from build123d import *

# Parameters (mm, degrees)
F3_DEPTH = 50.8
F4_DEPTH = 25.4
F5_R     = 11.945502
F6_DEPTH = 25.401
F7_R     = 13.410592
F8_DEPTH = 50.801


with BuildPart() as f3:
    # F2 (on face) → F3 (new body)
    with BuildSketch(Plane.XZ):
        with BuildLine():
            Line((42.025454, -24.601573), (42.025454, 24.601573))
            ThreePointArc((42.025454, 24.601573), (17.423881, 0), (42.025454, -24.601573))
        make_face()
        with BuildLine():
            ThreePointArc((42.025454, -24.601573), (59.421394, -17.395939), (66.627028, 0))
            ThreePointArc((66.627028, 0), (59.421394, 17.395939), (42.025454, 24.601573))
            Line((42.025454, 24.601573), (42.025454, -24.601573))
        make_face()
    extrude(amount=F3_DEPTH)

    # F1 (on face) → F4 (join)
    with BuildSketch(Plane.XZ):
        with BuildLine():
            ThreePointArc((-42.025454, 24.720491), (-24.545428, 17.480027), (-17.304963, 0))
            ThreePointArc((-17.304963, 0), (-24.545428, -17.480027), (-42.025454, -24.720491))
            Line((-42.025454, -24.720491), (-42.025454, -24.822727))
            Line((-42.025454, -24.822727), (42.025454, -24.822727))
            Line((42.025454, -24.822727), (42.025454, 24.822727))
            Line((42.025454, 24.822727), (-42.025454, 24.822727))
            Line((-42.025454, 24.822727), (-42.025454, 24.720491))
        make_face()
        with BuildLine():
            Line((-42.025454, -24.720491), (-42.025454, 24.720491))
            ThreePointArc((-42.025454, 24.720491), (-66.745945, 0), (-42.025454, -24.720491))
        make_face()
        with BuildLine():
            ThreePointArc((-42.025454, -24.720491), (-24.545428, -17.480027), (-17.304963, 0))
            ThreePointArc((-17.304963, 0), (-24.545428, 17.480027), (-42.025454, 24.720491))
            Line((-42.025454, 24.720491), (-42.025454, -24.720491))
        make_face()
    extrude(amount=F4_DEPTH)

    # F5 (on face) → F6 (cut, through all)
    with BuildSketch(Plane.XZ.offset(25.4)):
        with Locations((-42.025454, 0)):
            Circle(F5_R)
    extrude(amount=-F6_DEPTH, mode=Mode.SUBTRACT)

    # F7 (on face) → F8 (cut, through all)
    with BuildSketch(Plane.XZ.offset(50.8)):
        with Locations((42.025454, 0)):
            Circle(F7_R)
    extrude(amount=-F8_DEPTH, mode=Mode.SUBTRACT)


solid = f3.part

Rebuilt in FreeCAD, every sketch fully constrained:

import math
import FreeCAD as App
import Part
import Sketcher

V = App.Vector
Q = App.Units.Quantity

doc = App.newDocument("Part")
body = doc.addObject("PartDesign::Body", "Body")

# Sketch on XZ plane
sketch1 = body.newObject("Sketcher::SketchObject", "Sketch")
sketch1.AttachmentSupport = (doc.getObject("XZ_Plane"), [""])
sketch1.MapMode = "FlatFace"
sketch1.addGeometry(Part.ArcOfCircle(Part.Circle(V(42, 0, 0), V(0, 0, 1), 25), math.radians(90), math.radians(270)), False)
sketch1.addGeometry(Part.ArcOfCircle(Part.Circle(V(42, 0, 0), V(0, 0, 1), 25), math.radians(-90), math.radians(0)), False)
sketch1.addGeometry(Part.ArcOfCircle(Part.Circle(V(42, 0, 0), V(0, 0, 1), 25), math.radians(0), math.radians(90)), False)
sketch1.addConstraint(Sketcher.Constraint("Tangent", 0, 2, 1, 1))
sketch1.addConstraint(Sketcher.Constraint("Tangent", 1, 2, 2, 1))
sketch1.addConstraint(Sketcher.Constraint("Tangent", 2, 2, 0, 1))
sketch1.addConstraint(Sketcher.Constraint("Symmetric", 0, 2, 2, 2, -1))
sketch1.addConstraint(Sketcher.Constraint("PointOnObject", 1, 2, -1))
sketch1.addConstraint(Sketcher.Constraint("Vertical", 2, 3, 0, 2))
sketch1.addConstraint(Sketcher.Constraint("Radius", 0, Q("24.601573 mm")))
sketch1.addConstraint(Sketcher.Constraint("DistanceX", -1, 1, 0, 3, Q("42.025454 mm")))
pad1 = body.newObject("PartDesign::Pad", "Pad")
pad1.Profile = sketch1
pad1.Length = Q("2 in")

# Sketch on XZ plane
sketch2 = body.newObject("Sketcher::SketchObject", "Sketch001")
sketch2.AttachmentSupport = (doc.getObject("XZ_Plane"), [""])
sketch2.MapMode = "FlatFace"
sketch2.addGeometry(Part.LineSegment(V(-42.03, -24.72, 0), V(-42.03, -24.82, 0)), False)
sketch2.addGeometry(Part.LineSegment(V(-42.03, -24.82, 0), V(42.03, -24.82, 0)), False)
sketch2.addGeometry(Part.LineSegment(V(42.03, -24.82, 0), V(42.03, 24.82, 0)), False)
sketch2.addGeometry(Part.LineSegment(V(42.03, 24.82, 0), V(-42.03, 24.82, 0)), False)
sketch2.addGeometry(Part.LineSegment(V(-42.03, 24.82, 0), V(-42.03, 24.72, 0)), False)
sketch2.addGeometry(Part.ArcOfCircle(Part.Circle(V(-42.03, 0, 0), V(0, 0, 1), 24.72), math.radians(90), math.radians(270)), False)
sketch2.addConstraint(Sketcher.Constraint("Coincident", 0, 2, 1, 1))
sketch2.addConstraint(Sketcher.Constraint("Coincident", 1, 2, 2, 1))
sketch2.addConstraint(Sketcher.Constraint("Coincident", 2, 2, 3, 1))
sketch2.addConstraint(Sketcher.Constraint("Coincident", 3, 2, 4, 1))
sketch2.addConstraint(Sketcher.Constraint("Coincident", 4, 2, 5, 1))
sketch2.addConstraint(Sketcher.Constraint("Coincident", 5, 2, 0, 1))
sketch2.addConstraint(Sketcher.Constraint("Vertical", 0))
sketch2.addConstraint(Sketcher.Constraint("Horizontal", 1))
sketch2.addConstraint(Sketcher.Constraint("Vertical", 2))
sketch2.addConstraint(Sketcher.Constraint("Horizontal", 3))
sketch2.addConstraint(Sketcher.Constraint("Vertical", 4))
sketch2.addConstraint(Sketcher.Constraint("Symmetric", 0, 2, 2, 2, -1, 1))
sketch2.addConstraint(Sketcher.Constraint("Symmetric", 4, 2, 5, 2, -1))
sketch2.addConstraint(Sketcher.Constraint("Vertical", 5, 3, 0, 2))
sketch2.addConstraint(Sketcher.Constraint("Radius", 5, Q("24.720491 mm")))
sketch2.addConstraint(Sketcher.Constraint("DistanceX", 1, 1, 1, 2, Q("84.050908 mm")))
sketch2.addConstraint(Sketcher.Constraint("DistanceY", 0, 2, 0, 1, Q("0.102236 mm")))
pad2 = body.newObject("PartDesign::Pad", "Pad001")
pad2.Profile = sketch2
pad2.Length = Q("1 in")

# Sketch on XZ plane
sketch3 = body.newObject("Sketcher::SketchObject", "Sketch002")
sketch3.AttachmentSupport = (doc.getObject("XZ_Plane"), [""])
sketch3.MapMode = "FlatFace"
sketch3.AttachmentOffset = App.Placement(V(0, 0, 1 * 25.4), App.Rotation())
sketch3.addGeometry(Part.Circle(V(-42, 0, 0), V(0, 0, 1), 12), False)
sketch3.addConstraint(Sketcher.Constraint("PointOnObject", 0, 3, -1))
sketch3.addConstraint(Sketcher.Constraint("Diameter", 0, Q("23.891004 mm")))
sketch3.addConstraint(Sketcher.Constraint("DistanceX", 0, 3, -1, 1, Q("42.025454 mm")))
pocket1 = body.newObject("PartDesign::Pocket", "Pocket")
pocket1.Profile = sketch3
pocket1.Type = "ThroughAll"

# Sketch on XZ plane
sketch4 = body.newObject("Sketcher::SketchObject", "Sketch003")
sketch4.AttachmentSupport = (doc.getObject("XZ_Plane"), [""])
sketch4.MapMode = "FlatFace"
sketch4.AttachmentOffset = App.Placement(V(0, 0, 2 * 25.4), App.Rotation())
sketch4.addGeometry(Part.Circle(V(42, 0, 0), V(0, 0, 1), 13), False)
sketch4.addConstraint(Sketcher.Constraint("PointOnObject", 0, 3, -1))
sketch4.addConstraint(Sketcher.Constraint("Diameter", 0, Q("26.821184 mm")))
sketch4.addConstraint(Sketcher.Constraint("DistanceX", -1, 1, 0, 3, Q("42.025454 mm")))
pocket2 = body.newObject("PartDesign::Pocket", "Pocket001")
pocket2.Profile = sketch4
pocket2.Type = "ThroughAll"

doc.recompute()
